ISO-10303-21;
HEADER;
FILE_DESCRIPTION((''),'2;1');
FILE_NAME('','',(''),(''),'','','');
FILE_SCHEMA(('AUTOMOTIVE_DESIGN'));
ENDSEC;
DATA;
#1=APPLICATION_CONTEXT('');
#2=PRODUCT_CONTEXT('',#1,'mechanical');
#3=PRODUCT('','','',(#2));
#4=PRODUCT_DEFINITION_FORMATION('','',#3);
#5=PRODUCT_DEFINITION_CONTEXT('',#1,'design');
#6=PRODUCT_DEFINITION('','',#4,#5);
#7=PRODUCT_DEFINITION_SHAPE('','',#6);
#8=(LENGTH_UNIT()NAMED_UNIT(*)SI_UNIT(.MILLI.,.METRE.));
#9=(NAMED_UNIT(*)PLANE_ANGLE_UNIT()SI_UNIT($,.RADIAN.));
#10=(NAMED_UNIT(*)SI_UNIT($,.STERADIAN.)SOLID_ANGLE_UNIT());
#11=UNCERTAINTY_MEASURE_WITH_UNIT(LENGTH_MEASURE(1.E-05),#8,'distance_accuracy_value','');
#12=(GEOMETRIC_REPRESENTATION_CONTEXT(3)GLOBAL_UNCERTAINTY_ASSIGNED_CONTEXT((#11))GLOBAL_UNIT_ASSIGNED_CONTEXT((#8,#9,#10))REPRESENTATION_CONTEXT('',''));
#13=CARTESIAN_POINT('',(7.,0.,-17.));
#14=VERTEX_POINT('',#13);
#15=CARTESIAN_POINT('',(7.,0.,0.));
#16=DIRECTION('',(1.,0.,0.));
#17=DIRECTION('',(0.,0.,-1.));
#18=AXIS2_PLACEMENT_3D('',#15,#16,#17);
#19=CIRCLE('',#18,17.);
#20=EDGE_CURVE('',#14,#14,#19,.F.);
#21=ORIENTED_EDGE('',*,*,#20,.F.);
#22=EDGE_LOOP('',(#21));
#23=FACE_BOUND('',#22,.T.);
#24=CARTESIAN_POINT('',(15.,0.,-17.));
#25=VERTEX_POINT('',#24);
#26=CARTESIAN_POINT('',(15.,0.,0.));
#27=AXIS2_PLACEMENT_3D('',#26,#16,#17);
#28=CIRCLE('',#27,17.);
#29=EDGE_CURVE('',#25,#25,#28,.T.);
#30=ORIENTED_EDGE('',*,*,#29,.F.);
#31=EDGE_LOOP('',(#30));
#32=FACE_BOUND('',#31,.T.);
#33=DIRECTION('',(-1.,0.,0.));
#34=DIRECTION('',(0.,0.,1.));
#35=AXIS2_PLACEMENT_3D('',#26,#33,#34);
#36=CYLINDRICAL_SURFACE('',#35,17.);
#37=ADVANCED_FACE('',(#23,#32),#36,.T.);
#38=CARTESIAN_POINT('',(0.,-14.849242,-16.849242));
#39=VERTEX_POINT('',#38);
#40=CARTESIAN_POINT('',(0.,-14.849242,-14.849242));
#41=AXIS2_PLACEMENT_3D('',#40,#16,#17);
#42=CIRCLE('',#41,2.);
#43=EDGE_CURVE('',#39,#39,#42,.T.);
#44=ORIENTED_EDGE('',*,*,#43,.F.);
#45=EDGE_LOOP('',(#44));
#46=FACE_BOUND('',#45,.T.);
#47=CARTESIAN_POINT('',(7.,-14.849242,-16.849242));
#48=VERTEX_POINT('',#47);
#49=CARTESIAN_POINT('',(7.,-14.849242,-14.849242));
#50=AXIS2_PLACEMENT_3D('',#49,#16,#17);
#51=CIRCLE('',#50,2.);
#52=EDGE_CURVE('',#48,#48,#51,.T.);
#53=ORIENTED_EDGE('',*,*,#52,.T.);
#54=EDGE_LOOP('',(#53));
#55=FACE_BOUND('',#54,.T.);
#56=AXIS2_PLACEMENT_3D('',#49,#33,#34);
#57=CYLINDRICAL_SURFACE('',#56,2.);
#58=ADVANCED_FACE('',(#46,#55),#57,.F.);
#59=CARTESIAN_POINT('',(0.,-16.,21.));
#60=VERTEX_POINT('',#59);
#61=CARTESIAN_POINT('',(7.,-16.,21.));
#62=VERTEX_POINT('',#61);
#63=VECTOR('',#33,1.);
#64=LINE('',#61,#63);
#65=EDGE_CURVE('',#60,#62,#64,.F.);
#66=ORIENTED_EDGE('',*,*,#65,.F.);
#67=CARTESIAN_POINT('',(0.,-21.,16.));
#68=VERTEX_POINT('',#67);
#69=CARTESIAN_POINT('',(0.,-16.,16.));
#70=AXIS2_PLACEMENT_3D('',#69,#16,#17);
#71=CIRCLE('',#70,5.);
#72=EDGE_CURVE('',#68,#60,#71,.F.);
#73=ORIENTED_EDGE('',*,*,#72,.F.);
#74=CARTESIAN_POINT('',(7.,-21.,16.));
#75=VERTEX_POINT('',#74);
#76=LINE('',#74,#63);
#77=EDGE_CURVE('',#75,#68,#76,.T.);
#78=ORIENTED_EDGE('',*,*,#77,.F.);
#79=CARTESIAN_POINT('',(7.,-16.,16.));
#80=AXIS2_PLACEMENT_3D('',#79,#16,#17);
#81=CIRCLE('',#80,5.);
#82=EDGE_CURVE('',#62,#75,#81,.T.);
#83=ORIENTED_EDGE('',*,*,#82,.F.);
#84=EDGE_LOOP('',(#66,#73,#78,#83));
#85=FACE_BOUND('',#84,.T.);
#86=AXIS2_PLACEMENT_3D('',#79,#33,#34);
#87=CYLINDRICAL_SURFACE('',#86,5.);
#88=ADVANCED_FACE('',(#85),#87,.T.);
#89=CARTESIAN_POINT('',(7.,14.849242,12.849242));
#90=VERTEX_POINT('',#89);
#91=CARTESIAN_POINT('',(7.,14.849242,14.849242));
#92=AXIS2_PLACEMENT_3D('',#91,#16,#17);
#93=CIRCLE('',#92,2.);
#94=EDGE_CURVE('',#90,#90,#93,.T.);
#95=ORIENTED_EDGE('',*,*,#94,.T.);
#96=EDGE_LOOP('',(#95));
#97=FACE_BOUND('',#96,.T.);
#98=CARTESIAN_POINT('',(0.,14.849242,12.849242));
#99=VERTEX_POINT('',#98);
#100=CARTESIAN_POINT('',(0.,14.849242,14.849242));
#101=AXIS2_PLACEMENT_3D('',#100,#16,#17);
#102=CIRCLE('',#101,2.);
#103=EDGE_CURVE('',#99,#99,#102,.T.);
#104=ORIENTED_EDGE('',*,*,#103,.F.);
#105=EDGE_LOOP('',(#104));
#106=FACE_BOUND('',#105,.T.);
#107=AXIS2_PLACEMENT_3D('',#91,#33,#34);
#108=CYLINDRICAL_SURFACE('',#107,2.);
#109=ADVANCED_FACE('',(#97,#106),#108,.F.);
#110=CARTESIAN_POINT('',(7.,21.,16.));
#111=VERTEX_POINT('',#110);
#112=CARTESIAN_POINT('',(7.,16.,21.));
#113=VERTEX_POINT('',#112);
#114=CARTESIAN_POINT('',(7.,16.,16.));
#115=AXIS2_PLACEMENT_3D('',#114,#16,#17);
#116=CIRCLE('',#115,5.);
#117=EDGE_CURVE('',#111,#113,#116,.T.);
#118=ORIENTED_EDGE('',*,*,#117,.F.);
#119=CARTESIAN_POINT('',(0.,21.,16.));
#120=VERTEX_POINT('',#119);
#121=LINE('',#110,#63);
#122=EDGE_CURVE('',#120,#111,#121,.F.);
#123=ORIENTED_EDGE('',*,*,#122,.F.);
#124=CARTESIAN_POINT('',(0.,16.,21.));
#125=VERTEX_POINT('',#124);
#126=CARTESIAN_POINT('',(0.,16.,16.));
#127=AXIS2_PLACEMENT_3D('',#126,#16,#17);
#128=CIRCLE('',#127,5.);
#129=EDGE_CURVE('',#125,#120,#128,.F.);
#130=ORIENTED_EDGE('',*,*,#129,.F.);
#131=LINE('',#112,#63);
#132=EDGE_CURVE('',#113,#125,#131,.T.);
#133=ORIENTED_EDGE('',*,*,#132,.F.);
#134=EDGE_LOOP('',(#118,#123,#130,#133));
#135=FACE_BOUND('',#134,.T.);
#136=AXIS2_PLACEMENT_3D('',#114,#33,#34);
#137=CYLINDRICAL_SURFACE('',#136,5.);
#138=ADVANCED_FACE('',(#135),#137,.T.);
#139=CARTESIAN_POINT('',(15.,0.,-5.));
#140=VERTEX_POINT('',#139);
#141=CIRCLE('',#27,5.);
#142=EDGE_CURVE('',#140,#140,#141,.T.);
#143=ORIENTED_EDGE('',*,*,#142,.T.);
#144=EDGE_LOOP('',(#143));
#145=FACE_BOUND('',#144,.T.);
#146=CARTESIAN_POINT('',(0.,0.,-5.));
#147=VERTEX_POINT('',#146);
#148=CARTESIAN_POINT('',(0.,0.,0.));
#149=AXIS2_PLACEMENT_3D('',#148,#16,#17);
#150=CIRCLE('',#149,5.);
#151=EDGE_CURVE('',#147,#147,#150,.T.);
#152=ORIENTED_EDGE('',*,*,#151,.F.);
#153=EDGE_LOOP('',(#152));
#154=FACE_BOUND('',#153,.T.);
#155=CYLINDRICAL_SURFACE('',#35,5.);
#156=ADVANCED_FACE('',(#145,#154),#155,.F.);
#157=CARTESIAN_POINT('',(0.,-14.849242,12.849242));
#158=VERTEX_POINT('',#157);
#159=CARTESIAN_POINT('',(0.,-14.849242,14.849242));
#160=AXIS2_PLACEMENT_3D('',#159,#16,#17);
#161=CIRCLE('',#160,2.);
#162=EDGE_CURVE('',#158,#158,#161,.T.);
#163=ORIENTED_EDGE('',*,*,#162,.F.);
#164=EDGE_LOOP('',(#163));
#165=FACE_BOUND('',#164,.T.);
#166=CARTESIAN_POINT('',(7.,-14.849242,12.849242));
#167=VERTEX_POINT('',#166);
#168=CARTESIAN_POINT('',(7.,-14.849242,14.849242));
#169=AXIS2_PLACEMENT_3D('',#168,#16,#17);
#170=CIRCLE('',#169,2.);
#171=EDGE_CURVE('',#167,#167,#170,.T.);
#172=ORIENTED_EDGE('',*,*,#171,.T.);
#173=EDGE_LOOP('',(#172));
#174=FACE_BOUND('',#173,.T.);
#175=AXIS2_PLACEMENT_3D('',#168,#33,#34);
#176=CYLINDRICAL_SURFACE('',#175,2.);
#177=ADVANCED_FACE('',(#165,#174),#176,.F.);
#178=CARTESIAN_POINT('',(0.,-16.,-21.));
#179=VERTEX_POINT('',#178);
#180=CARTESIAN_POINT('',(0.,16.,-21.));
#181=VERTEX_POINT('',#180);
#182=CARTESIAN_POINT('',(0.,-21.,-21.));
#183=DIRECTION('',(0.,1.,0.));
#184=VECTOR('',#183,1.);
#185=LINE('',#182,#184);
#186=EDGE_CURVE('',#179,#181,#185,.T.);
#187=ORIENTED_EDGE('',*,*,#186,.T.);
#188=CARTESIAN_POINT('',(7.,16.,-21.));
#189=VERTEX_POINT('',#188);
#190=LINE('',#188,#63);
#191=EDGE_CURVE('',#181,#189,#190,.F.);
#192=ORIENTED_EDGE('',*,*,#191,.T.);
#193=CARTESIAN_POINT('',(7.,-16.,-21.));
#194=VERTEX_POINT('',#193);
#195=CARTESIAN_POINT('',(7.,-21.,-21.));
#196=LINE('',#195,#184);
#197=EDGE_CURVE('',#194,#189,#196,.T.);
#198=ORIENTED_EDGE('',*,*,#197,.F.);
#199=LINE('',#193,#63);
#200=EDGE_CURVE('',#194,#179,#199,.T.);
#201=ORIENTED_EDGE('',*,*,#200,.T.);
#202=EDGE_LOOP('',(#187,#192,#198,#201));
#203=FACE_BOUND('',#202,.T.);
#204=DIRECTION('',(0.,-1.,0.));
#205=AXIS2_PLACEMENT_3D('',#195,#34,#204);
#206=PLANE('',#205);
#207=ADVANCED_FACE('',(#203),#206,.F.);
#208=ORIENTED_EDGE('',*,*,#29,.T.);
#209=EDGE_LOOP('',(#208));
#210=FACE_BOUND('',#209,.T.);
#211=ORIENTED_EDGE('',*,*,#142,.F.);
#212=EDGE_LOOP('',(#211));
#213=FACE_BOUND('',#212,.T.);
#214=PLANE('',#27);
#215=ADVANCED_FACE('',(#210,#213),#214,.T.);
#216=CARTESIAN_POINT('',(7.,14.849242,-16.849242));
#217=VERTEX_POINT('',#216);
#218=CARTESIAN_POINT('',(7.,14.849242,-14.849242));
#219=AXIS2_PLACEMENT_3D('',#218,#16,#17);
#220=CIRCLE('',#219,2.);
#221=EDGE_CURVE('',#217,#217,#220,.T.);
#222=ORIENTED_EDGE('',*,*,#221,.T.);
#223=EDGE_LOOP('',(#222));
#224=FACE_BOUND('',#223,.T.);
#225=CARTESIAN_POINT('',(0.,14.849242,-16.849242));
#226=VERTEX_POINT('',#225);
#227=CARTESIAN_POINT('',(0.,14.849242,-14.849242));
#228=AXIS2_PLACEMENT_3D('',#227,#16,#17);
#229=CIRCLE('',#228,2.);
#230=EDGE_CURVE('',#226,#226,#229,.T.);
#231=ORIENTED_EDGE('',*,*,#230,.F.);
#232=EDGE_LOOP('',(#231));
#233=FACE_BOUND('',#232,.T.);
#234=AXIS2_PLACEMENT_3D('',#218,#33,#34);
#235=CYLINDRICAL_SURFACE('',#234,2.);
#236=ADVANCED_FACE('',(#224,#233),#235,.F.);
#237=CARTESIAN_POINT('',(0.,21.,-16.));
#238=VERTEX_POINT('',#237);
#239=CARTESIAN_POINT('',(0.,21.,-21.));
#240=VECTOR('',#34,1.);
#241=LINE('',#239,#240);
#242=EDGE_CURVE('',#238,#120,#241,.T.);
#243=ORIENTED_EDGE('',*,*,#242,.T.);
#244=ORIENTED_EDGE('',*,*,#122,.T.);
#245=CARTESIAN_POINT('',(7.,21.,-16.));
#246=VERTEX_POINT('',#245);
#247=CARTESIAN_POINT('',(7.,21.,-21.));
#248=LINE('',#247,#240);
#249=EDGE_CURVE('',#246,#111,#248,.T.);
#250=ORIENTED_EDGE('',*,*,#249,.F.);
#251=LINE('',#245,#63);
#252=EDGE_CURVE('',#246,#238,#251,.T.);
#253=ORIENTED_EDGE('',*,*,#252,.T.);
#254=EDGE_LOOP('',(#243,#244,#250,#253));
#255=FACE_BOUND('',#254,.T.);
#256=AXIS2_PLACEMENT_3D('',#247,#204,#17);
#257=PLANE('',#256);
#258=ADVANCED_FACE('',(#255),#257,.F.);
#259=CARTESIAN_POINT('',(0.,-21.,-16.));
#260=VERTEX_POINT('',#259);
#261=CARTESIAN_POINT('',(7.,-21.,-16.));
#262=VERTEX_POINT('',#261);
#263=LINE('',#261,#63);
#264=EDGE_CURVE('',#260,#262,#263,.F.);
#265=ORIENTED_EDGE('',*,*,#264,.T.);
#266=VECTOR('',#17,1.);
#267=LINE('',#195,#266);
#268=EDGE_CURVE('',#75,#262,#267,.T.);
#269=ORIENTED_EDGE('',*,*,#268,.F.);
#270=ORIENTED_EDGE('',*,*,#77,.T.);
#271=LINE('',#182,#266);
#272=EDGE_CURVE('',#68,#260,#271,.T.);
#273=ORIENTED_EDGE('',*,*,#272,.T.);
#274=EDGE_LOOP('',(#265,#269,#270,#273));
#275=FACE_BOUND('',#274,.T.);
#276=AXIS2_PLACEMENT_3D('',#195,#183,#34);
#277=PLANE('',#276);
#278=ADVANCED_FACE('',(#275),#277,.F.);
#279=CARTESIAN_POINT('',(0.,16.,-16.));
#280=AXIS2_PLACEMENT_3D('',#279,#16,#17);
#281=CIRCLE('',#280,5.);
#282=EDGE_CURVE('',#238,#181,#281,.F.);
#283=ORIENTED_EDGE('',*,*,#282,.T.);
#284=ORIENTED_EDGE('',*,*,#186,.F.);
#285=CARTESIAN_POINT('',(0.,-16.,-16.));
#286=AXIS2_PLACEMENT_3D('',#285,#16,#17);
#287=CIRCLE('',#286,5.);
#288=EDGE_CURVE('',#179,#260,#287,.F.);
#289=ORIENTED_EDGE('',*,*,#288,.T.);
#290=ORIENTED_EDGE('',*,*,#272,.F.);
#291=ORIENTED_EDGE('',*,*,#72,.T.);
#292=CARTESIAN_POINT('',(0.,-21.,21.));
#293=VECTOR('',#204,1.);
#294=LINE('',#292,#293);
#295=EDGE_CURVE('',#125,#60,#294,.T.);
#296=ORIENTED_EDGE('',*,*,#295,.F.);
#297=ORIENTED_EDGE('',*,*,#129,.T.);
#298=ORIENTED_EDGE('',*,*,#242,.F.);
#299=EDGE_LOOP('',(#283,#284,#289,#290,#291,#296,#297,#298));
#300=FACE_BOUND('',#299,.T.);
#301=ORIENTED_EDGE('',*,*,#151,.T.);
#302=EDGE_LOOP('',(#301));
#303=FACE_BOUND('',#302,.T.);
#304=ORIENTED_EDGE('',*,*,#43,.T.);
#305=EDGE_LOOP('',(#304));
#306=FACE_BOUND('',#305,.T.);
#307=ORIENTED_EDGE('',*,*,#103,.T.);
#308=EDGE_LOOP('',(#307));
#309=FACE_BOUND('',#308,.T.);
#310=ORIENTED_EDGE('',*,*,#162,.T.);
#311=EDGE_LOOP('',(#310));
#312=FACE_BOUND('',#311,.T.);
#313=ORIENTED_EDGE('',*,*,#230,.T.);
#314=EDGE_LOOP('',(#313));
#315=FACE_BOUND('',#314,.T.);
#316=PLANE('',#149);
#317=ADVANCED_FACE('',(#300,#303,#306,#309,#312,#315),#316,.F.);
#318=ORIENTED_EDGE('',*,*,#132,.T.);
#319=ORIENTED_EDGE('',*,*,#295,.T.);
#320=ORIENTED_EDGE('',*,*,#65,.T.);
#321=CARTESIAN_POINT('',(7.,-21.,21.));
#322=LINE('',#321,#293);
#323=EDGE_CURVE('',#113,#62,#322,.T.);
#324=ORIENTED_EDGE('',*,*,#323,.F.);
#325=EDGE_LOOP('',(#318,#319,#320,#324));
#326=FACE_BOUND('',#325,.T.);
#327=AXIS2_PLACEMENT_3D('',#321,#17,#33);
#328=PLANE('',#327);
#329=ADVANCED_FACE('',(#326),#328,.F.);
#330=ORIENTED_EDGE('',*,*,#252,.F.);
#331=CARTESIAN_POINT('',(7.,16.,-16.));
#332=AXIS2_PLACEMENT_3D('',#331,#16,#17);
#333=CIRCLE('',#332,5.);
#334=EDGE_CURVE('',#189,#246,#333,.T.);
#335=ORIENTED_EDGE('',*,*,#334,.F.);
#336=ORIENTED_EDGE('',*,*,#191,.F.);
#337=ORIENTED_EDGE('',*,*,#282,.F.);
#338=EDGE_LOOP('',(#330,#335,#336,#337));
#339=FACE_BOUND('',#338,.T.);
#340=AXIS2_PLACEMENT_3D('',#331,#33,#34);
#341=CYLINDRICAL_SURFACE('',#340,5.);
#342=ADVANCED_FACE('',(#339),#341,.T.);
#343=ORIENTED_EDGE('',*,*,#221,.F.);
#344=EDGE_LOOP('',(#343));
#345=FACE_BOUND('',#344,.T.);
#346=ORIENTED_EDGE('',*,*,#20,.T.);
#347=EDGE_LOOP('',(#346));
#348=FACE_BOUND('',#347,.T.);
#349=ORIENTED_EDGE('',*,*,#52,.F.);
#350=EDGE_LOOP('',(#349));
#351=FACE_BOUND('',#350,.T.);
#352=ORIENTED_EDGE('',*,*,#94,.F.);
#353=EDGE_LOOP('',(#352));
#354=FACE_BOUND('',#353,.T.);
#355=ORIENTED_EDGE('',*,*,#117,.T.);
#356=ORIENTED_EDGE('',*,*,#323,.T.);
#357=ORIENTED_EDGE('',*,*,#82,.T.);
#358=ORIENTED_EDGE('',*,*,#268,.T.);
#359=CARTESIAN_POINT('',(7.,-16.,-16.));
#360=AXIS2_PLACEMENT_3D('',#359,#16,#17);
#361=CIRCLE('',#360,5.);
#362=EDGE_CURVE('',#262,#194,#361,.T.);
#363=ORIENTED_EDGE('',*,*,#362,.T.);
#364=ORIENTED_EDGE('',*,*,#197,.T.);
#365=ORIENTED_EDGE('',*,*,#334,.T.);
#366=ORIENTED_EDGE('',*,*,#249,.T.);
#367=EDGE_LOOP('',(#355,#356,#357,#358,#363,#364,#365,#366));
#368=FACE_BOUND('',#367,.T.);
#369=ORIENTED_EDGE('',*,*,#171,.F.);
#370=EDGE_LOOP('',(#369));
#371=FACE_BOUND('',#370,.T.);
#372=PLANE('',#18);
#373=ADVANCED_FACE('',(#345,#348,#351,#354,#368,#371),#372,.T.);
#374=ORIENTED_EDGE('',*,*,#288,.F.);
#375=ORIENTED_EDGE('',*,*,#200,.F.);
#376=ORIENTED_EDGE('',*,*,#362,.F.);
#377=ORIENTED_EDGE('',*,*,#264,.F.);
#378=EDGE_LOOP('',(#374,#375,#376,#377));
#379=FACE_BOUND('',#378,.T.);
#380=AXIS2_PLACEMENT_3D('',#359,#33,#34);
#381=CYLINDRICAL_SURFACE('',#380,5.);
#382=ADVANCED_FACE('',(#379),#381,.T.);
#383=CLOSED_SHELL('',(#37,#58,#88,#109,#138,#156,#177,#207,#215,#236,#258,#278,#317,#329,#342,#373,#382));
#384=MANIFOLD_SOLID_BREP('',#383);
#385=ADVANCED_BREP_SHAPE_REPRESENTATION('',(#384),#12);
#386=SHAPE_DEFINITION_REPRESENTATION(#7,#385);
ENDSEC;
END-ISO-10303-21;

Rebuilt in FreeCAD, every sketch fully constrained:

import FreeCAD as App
import Part
import Sketcher

V = App.Vector


def edges_at(feature, points):
    """Names of the edges that pass closest to the given points."""
    edges = feature.Shape.Edges
    near = lambda p: min(range(len(edges)), key=lambda i: edges[i].distToShape(Part.Vertex(*p))[0])
    return sorted({f"Edge{near(p) + 1}" for p in points})


def add_polygon(sketch, points):
    """Adds a closed chain of lines whose ends are joined by coincident constraints."""
    first, n = sketch.GeometryCount, len(points)
    for a, b in zip(points, points[1:] + points[:1]):
        sketch.addGeometry(Part.LineSegment(App.Vector(*a, 0), App.Vector(*b, 0)), False)
    for i in range(n):
        sketch.addConstraint(Sketcher.Constraint("Coincident", first + i, 2, first + (i + 1) % n, 1))

doc = App.newDocument("Part")
body = doc.addObject("PartDesign::Body", "Body")

sketch1 = body.newObject("Sketcher::SketchObject", "Sketch")
sketch1.AttachmentSupport = (doc.getObject("YZ_Plane"), [""])
sketch1.MapMode = "FlatFace"
add_polygon(sketch1, [(21, 21), (-21, 21), (-21, -21), (21, -21)])
sketch1.addGeometry(Part.Circle(V(-14.849242, 14.849242, 0), V(0, 0, 1), 2), False)
sketch1.addGeometry(Part.Circle(V(-14.849242, -14.849242, 0), V(0, 0, 1), 2), False)
sketch1.addGeometry(Part.Circle(V(14.849242, 14.849242, 0), V(0, 0, 1), 2), False)
sketch1.addGeometry(Part.Circle(V(0, 0, 0), V(0, 0, 1), 10), False)
sketch1.addGeometry(Part.Circle(V(14.849242, -14.849242, 0), V(0, 0, 1), 2), False)
sketch1.addConstraint([
    Sketcher.Constraint("Horizontal", 0),
    Sketcher.Constraint("Vertical", 1),
    Sketcher.Constraint("Horizontal", 2),
    Sketcher.Constraint("Vertical", 3),
    Sketcher.Constraint("Coincident", 7, 3, -1, 1),
    Sketcher.Constraint("Equal", 4, 5),
    Sketcher.Constraint("Equal", 5, 6),
    Sketcher.Constraint("Equal", 6, 8),
    Sketcher.Constraint("Symmetric", 5, 3, 6, 3, -1, 1),
    Sketcher.Constraint("Symmetric", 4, 3, 8, 3, -1, 1),
    Sketcher.Constraint("Symmetric", 0, 2, 2, 2, -1, 1),
    Sketcher.Constraint("Symmetric", 4, 3, 6, 3, -2),
    Sketcher.Constraint("Equal", 2, 1),
    Sketcher.Constraint("Diameter", 4, 4.0),
    Sketcher.Constraint("Diameter", 7, 20.0),
    Sketcher.Constraint("DistanceX", 0, 2, 0, 1, 42.0),
    Sketcher.Constraint("DistanceX", 4, 3, -1, 1, 14.849242),
    Sketcher.Constraint("DistanceY", -1, 1, 4, 3, 14.849242),
])
pad1 = body.newObject("PartDesign::Pad", "Pad")
pad1.Profile = sketch1
pad1.Length = 7

sketch2 = body.newObject("Sketcher::SketchObject", "Sketch001")
sketch2.AttachmentSupport = (doc.getObject("YZ_Plane"), [""])
sketch2.MapMode = "FlatFace"
sketch2.addGeometry([
    Part.Circle(V(0, 0, 0), V(0, 0, 1), 17),
    Part.Circle(V(0, 0, 0), V(0, 0, 1), 5),
], False)
sketch2.addConstraint([
    Sketcher.Constraint("Coincident", 0, 3, -1, 1),
    Sketcher.Constraint("Coincident", 1, 3, -1, 1),
    Sketcher.Constraint("Diameter", 0, 34.0),
    Sketcher.Constraint("Diameter", 1, 10.0),
])
pad2 = body.newObject("PartDesign::Pad", "Pad001")
pad2.Profile = sketch2
pad2.Length = 15
doc.recompute()

fillet = body.newObject("PartDesign::Fillet", "Fillet")
fillet.Base = (pad2, edges_at(pad2, [
    (3.5, 21, 21),
    (3.5, 21, -21),
    (3.5, -21, -21),
    (3.5, -21, 21),
]))
fillet.Radius = 5

doc.recompute()
